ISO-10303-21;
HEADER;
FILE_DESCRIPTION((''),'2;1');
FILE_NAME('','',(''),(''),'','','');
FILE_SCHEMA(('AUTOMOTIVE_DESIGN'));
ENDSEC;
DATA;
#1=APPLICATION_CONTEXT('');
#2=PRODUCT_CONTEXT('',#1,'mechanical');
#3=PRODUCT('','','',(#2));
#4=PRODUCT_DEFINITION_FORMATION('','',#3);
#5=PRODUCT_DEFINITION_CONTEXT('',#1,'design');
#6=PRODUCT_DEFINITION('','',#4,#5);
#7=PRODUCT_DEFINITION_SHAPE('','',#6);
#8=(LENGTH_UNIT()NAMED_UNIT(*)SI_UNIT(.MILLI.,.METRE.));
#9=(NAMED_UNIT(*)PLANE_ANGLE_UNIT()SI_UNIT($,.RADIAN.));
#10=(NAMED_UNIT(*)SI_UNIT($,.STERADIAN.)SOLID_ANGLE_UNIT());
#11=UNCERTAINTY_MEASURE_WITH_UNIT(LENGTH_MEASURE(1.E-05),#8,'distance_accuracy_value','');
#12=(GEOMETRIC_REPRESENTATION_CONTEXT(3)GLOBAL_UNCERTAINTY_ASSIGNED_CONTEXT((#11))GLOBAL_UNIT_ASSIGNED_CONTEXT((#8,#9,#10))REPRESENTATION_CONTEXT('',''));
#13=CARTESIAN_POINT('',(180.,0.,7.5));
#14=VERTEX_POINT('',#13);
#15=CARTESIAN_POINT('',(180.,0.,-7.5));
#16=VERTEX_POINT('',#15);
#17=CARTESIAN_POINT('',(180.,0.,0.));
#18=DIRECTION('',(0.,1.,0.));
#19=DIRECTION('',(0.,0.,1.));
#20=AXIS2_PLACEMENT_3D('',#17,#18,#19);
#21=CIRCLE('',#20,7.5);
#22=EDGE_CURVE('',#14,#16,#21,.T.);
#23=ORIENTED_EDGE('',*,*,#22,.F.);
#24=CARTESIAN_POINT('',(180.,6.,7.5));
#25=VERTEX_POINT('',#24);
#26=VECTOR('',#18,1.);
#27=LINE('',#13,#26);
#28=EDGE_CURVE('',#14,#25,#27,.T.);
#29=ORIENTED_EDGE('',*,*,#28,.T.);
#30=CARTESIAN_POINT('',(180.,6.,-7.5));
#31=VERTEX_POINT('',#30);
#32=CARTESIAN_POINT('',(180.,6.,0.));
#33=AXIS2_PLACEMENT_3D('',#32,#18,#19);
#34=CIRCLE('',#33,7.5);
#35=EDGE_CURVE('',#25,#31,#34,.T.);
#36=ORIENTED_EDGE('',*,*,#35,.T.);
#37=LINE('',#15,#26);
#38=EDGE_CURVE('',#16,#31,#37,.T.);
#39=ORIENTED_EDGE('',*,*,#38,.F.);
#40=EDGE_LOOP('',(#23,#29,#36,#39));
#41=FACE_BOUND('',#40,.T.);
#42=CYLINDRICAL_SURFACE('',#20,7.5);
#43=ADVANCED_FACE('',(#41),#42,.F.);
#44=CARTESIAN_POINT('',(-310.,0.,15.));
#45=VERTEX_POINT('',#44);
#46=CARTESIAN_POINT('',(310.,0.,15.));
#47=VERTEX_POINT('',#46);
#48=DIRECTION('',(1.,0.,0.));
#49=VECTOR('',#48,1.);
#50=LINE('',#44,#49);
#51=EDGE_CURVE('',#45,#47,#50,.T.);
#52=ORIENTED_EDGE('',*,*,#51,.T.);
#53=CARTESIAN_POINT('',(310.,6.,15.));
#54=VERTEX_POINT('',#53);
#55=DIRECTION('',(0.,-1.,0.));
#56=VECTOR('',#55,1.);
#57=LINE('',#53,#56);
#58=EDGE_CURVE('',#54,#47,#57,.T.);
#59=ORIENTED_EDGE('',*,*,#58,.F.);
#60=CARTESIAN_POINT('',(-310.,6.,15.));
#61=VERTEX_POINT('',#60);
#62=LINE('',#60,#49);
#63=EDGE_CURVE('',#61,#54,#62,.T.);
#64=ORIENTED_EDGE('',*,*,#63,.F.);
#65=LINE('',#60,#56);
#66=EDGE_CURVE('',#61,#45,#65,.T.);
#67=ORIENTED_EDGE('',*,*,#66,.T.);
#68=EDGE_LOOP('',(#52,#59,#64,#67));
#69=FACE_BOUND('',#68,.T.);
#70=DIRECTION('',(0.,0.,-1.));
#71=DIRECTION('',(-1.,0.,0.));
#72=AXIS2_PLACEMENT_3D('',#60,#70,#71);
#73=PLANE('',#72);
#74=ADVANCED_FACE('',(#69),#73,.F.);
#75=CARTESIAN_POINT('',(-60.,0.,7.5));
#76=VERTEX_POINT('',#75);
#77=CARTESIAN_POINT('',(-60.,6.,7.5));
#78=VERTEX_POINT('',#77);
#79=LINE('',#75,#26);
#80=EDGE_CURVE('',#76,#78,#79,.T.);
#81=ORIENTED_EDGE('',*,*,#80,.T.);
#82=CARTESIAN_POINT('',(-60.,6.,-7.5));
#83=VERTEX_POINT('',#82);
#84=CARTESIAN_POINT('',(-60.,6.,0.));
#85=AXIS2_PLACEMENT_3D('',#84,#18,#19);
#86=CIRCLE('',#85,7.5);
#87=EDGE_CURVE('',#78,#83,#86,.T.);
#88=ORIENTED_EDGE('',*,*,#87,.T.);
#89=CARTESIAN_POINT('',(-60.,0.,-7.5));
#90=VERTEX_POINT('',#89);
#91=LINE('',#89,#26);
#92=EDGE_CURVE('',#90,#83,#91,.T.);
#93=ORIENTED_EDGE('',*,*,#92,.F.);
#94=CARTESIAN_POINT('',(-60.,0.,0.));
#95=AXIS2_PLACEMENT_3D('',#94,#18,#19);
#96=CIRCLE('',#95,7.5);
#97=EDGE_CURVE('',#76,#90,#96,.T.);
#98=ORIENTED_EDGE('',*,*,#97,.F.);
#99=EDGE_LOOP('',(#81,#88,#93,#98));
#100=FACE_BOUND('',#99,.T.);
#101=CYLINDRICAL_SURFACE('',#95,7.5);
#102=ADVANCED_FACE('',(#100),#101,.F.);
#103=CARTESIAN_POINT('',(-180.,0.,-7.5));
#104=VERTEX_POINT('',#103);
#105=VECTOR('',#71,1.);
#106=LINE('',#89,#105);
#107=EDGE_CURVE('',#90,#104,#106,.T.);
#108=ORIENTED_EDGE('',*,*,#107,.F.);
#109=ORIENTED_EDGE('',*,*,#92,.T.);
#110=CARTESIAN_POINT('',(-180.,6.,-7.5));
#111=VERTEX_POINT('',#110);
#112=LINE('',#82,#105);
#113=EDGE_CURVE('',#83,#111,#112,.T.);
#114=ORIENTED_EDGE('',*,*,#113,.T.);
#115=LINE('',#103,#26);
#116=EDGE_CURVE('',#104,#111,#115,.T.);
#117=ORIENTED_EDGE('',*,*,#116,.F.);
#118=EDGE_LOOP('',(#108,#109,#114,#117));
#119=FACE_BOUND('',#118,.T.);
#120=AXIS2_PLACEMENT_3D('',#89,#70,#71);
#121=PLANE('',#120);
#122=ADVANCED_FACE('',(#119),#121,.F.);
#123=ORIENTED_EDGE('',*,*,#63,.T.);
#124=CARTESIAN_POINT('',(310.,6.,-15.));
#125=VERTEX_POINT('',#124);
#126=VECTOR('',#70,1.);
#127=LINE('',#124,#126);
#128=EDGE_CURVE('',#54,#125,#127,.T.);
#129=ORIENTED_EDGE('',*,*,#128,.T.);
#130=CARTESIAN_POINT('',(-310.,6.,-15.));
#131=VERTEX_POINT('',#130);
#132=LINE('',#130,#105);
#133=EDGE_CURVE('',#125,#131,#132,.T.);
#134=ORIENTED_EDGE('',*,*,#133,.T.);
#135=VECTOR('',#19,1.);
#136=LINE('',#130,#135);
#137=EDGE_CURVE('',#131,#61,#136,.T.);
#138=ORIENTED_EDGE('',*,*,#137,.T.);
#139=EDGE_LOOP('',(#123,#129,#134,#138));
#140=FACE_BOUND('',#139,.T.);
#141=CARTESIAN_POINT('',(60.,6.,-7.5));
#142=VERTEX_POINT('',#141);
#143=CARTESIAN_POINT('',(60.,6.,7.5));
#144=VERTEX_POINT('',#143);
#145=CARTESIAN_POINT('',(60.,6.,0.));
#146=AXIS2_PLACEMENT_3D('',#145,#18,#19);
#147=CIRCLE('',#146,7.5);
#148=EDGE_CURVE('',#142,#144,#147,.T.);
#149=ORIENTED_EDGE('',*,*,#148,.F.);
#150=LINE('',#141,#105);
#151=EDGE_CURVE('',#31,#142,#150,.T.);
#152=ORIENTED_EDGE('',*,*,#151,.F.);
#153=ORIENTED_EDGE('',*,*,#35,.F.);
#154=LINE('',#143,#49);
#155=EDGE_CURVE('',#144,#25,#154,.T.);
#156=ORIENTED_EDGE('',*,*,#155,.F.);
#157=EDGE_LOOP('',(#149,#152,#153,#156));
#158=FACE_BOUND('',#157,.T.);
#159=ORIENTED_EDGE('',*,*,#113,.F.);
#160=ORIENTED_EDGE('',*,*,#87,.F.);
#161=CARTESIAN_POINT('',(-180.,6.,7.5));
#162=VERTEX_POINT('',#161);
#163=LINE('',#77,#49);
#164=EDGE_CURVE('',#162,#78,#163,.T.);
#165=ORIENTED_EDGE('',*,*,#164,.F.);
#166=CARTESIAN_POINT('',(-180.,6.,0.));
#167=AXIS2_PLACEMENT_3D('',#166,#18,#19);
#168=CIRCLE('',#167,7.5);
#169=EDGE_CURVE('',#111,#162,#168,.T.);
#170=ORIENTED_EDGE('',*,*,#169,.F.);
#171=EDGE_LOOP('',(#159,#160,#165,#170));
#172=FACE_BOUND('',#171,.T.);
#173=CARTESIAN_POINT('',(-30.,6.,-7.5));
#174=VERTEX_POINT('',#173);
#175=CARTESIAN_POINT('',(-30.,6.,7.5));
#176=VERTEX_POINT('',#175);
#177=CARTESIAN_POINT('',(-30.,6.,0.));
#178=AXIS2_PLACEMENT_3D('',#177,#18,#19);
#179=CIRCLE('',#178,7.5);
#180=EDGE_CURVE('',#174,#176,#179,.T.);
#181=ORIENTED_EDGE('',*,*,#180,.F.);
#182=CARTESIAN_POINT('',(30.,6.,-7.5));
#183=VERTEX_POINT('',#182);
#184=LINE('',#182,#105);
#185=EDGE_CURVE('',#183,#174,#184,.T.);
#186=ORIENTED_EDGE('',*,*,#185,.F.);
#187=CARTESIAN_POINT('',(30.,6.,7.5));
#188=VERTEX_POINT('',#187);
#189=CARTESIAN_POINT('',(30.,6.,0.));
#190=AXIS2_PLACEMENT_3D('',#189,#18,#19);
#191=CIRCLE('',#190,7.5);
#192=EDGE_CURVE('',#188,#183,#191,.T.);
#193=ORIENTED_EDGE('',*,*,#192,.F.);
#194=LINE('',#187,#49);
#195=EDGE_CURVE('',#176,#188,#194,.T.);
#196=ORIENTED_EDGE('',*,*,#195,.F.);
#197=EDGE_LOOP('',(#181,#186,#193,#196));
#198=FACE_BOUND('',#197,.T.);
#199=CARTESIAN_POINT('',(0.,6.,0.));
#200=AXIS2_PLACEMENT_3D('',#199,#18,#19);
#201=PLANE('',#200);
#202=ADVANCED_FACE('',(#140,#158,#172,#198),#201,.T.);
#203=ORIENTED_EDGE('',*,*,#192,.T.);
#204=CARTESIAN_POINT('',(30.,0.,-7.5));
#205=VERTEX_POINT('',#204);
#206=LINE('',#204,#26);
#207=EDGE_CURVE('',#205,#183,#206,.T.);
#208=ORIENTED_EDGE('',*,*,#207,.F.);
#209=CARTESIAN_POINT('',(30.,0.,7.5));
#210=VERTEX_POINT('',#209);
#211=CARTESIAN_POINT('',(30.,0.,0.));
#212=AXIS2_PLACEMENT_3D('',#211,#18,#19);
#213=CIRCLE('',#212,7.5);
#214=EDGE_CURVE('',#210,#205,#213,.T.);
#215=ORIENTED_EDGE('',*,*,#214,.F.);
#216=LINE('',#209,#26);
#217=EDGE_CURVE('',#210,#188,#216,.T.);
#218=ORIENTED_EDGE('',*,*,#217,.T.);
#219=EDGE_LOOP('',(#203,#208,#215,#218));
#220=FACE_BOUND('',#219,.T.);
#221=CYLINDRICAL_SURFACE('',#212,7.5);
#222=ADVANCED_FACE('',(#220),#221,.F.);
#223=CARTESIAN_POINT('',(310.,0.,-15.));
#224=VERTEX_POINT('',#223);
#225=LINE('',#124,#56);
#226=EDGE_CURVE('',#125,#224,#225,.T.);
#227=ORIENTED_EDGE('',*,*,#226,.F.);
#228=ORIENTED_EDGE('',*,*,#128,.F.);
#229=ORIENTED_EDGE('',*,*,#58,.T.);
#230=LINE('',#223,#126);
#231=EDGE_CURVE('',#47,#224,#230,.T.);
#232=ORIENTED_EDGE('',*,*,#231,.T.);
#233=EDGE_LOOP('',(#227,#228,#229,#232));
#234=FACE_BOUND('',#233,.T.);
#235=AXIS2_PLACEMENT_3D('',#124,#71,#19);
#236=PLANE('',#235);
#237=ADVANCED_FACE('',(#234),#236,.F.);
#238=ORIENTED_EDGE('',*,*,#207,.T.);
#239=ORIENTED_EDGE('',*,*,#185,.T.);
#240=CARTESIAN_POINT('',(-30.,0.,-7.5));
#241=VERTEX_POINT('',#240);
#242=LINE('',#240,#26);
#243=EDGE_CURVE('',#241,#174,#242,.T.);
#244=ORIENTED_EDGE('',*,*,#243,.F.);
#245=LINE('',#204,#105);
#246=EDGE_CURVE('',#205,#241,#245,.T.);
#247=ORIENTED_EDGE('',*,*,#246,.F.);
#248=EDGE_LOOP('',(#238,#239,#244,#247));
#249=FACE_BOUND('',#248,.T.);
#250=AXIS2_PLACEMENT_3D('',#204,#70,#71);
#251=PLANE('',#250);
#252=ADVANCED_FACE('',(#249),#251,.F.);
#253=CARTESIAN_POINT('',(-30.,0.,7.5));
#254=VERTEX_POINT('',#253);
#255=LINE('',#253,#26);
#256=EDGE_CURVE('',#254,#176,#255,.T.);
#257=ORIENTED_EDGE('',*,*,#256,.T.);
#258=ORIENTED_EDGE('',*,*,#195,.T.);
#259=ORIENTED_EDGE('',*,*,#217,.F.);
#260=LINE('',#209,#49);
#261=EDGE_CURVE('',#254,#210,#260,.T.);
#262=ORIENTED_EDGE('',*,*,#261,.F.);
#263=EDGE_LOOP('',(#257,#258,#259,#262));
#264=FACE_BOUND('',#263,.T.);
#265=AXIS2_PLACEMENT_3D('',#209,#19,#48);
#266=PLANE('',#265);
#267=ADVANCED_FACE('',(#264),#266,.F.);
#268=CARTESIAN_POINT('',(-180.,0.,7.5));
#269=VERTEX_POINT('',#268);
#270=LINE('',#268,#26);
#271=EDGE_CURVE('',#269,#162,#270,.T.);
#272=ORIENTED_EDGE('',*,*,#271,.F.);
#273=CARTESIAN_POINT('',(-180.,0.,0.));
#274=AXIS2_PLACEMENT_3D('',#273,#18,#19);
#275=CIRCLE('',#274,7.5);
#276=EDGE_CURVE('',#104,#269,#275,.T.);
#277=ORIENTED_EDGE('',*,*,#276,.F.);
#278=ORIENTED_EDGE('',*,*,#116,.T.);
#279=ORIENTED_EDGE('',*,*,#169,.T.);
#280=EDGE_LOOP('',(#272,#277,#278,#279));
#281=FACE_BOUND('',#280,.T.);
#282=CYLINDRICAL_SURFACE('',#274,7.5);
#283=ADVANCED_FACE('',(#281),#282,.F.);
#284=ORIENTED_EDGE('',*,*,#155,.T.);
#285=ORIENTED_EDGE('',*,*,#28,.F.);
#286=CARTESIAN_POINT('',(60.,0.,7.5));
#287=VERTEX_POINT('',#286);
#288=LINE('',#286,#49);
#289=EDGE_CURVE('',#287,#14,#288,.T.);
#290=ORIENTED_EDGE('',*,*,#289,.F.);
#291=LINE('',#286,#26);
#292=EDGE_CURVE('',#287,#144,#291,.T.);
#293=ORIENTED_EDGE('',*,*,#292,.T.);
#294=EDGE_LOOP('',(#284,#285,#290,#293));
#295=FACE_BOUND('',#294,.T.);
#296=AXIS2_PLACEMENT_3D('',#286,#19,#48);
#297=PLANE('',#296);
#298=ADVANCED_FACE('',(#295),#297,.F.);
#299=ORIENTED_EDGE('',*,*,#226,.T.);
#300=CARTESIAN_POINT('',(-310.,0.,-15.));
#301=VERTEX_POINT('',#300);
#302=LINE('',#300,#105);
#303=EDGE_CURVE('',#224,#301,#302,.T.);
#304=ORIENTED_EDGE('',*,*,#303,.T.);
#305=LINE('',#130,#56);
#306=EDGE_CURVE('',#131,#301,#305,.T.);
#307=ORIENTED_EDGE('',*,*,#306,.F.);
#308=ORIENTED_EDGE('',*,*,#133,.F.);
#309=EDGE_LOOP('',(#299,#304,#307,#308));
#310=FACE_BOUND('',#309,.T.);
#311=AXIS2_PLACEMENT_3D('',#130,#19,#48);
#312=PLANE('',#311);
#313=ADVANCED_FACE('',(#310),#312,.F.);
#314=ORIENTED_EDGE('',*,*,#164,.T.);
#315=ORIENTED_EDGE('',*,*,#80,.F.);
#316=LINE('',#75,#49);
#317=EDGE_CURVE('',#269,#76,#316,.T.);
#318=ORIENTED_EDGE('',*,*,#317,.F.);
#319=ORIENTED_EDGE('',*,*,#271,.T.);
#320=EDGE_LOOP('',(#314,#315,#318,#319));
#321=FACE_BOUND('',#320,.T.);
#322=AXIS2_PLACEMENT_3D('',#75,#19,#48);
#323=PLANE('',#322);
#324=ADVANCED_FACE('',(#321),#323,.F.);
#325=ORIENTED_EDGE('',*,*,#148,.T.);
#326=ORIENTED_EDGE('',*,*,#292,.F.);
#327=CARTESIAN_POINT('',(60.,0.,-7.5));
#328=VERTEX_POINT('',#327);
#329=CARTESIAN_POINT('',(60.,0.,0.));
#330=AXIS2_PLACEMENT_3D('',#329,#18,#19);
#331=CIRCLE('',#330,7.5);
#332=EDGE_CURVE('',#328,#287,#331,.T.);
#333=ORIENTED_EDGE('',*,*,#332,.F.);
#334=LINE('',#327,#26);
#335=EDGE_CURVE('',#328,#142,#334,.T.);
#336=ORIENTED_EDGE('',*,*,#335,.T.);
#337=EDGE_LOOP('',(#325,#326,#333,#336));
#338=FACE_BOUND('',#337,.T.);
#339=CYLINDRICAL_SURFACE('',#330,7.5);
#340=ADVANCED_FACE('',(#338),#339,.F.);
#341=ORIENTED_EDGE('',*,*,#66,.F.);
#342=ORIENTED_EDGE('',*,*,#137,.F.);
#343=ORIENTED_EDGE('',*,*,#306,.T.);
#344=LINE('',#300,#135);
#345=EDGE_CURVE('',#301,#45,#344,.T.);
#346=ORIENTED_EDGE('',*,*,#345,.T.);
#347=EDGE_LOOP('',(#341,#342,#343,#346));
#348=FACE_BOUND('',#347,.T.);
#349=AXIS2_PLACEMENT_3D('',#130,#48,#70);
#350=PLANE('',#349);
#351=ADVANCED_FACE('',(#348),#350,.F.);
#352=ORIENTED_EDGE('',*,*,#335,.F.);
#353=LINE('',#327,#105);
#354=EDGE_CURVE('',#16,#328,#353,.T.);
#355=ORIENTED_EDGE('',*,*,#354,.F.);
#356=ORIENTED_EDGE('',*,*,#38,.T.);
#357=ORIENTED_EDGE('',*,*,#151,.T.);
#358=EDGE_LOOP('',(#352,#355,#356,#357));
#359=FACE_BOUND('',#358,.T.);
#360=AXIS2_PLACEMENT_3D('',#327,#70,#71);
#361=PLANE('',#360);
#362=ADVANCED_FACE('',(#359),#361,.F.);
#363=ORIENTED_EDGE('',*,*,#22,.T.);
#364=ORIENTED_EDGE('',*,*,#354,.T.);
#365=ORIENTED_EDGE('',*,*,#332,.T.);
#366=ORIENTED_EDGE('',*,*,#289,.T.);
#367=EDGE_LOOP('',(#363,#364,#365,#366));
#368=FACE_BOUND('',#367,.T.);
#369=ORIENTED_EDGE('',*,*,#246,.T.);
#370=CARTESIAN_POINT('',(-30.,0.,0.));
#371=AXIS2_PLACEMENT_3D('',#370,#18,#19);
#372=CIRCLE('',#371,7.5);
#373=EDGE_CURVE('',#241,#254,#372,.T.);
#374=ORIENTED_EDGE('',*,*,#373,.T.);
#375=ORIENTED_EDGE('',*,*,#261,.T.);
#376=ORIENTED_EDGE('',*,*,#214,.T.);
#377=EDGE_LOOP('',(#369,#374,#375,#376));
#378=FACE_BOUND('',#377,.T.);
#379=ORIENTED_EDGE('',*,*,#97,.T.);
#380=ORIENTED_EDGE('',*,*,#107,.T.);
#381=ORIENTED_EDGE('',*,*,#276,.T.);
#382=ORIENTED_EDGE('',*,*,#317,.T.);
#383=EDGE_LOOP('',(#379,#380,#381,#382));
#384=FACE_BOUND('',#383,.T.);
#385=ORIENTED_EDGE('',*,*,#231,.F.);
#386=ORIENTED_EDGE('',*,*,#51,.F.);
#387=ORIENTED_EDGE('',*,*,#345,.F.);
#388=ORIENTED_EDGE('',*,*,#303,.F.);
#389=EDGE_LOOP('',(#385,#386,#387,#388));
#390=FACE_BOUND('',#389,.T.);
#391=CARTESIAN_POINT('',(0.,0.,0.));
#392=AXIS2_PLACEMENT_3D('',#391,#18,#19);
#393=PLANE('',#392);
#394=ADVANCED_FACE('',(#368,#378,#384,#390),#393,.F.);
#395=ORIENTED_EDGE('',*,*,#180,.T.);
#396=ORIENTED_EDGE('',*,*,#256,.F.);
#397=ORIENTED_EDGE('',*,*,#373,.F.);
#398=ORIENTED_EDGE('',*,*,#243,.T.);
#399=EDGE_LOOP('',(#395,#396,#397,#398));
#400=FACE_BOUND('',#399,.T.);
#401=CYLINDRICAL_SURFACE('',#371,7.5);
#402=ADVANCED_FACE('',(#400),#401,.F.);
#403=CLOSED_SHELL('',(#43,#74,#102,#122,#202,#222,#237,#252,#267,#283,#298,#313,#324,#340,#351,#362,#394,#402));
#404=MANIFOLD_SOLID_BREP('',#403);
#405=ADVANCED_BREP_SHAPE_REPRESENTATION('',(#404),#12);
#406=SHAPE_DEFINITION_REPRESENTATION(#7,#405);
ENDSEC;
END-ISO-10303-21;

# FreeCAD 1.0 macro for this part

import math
import FreeCAD as App
import Part
import Sketcher
Q = App.Units.Quantity


def add_polygon(sketch, points):
    """Adds a closed chain of lines whose ends are joined by coincident constraints."""
    first, n = sketch.GeometryCount, len(points)
    for a, b in zip(points, points[1:] + points[:1]):
        sketch.addGeometry(Part.LineSegment(App.Vector(*a, 0), App.Vector(*b, 0)), False)
    for i in range(n):
        sketch.addConstraint(Sketcher.Constraint("Coincident", first + i, 2, first + (i + 1) % n, 1))

doc = App.newDocument("Part")
body = doc.addObject("PartDesign::Body", "Body")

# Sketch on XZ plane
sketch1 = body.newObject("Sketcher::SketchObject", "Sketch")
sketch1.AttachmentSupport = (doc.getObject("XZ_Plane"), [""])
sketch1.MapMode = "FlatFace"
add_polygon(sketch1, [(-310, -15), (-310, 15), (310, 15), (310, -15)])  # lines 0-3
sketch1.addConstraint(Sketcher.Constraint("Vertical", 0))
sketch1.addConstraint(Sketcher.Constraint("Horizontal", 1))
sketch1.addConstraint(Sketcher.Constraint("Vertical", 2))
sketch1.addConstraint(Sketcher.Constraint("Horizontal", 3))
sketch1.addConstraint(Sketcher.Constraint("Symmetric", 0, 2, 2, 2, -1, 1))
sketch1.addConstraint(Sketcher.Constraint("DistanceX", 1, 1, 1, 2, Q("620 mm")))
sketch1.addConstraint(Sketcher.Constraint("DistanceY", 0, 1, 0, 2, Q("30 mm")))
pad1 = body.newObject("PartDesign::Pad", "Pad")
pad1.Profile = sketch1
pad1.Length = 6
pad1.Reversed = True

# Sketch on XZ plane
sketch2 = body.newObject("Sketcher::SketchObject", "Sketch001")
sketch2.AttachmentSupport = (doc.getObject("XZ_Plane"), [""])
sketch2.MapMode = "FlatFace"
sketch2.AttachmentOffset = App.Placement(App.Vector(0, 0, -6), App.Rotation())
sketch2.addGeometry(Part.LineSegment(App.Vector(-30, 8, 0), App.Vector(30, 8, 0)), False)
sketch2.addGeometry(Part.ArcOfCircle(Part.Circle(App.Vector(30, 0, 0), App.Vector(0, 0, 1), 8), math.radians(-90), math.radians(90)), False)
sketch2.addGeometry(Part.LineSegment(App.Vector(30, -8, 0), App.Vector(-30, -8, 0)), False)
sketch2.addGeometry(Part.ArcOfCircle(Part.Circle(App.Vector(-30, 0, 0), App.Vector(0, 0, 1), 8), math.radians(90), math.radians(270)), False)
sketch2.addGeometry(Part.LineSegment(App.Vector(-180, 8, 0), App.Vector(-60, 8, 0)), False)
sketch2.addGeometry(Part.ArcOfCircle(Part.Circle(App.Vector(-60, 0, 0), App.Vector(0, 0, 1), 8), math.radians(-90), math.radians(90)), False)
sketch2.addGeometry(Part.LineSegment(App.Vector(-60, -8, 0), App.Vector(-180, -8, 0)), False)
sketch2.addGeometry(Part.ArcOfCircle(Part.Circle(App.Vector(-180, 0, 0), App.Vector(0, 0, 1), 8), math.radians(90), math.radians(270)), False)
sketch2.addGeometry(Part.LineSegment(App.Vector(180, -8, 0), App.Vector(60, -8, 0)), False)
sketch2.addGeometry(Part.ArcOfCircle(Part.Circle(App.Vector(60, 0, 0), App.Vector(0, 0, 1), 8), math.radians(90), math.radians(270)), False)
sketch2.addGeometry(Part.LineSegment(App.Vector(60, 8, 0), App.Vector(180, 8, 0)), False)
sketch2.addGeometry(Part.ArcOfCircle(Part.Circle(App.Vector(180, 0, 0), App.Vector(0, 0, 1), 8), math.radians(-90), math.radians(90)), False)
sketch2.addConstraint(Sketcher.Constraint("Tangent", 0, 2, 1, 2))
sketch2.addConstraint(Sketcher.Constraint("Tangent", 1, 1, 2, 1))
sketch2.addConstraint(Sketcher.Constraint("Tangent", 2, 2, 3, 2))
sketch2.addConstraint(Sketcher.Constraint("Tangent", 3, 1, 0, 1))
sketch2.addConstraint(Sketcher.Constraint("Tangent", 4, 2, 5, 2))
sketch2.addConstraint(Sketcher.Constraint("Tangent", 5, 1, 6, 1))
sketch2.addConstraint(Sketcher.Constraint("Tangent", 6, 2, 7, 2))
sketch2.addConstraint(Sketcher.Constraint("Tangent", 7, 1, 4, 1))
sketch2.addConstraint(Sketcher.Constraint("Tangent", 8, 2, 9, 2))
sketch2.addConstraint(Sketcher.Constraint("Tangent", 9, 1, 10, 1))
sketch2.addConstraint(Sketcher.Constraint("Tangent", 10, 2, 11, 2))
sketch2.addConstraint(Sketcher.Constraint("Tangent", 11, 1, 8, 1))
sketch2.addConstraint(Sketcher.Constraint("Horizontal", 0))
sketch2.addConstraint(Sketcher.Constraint("Horizontal", 2))
sketch2.addConstraint(Sketcher.Constraint("Horizontal", 4))
sketch2.addConstraint(Sketcher.Constraint("Horizontal", 6))
sketch2.addConstraint(Sketcher.Constraint("Horizontal", 8))
sketch2.addConstraint(Sketcher.Constraint("Horizontal", 10))
sketch2.addConstraint(Sketcher.Constraint("Equal", 3, 5))
sketch2.addConstraint(Sketcher.Constraint("Equal", 7, 9))
sketch2.addConstraint(Sketcher.Constraint("Symmetric", 1, 3, 3, 3, -1, 1))
sketch2.addConstraint(Sketcher.Constraint("Symmetric", 5, 3, 9, 3, -1, 1))
sketch2.addConstraint(Sketcher.Constraint("Symmetric", 7, 3, 11, 3, -2))
sketch2.addConstraint(Sketcher.Constraint("Radius", 1, Q("7.5 mm")))
sketch2.addConstraint(Sketcher.Constraint("DistanceX", 0, 1, 0, 2, Q("60 mm")))
sketch2.addConstraint(Sketcher.Constraint("DistanceX", 4, 1, 4, 2, Q("120 mm")))
sketch2.addConstraint(Sketcher.Constraint("DistanceX", 5, 3, -1, 1, Q("60 mm")))
pocket1 = body.newObject("PartDesign::Pocket", "Pocket")
pocket1.Profile = sketch2
pocket1.Type = "ThroughAll"
pocket1.Reversed = True

doc.recompute()
